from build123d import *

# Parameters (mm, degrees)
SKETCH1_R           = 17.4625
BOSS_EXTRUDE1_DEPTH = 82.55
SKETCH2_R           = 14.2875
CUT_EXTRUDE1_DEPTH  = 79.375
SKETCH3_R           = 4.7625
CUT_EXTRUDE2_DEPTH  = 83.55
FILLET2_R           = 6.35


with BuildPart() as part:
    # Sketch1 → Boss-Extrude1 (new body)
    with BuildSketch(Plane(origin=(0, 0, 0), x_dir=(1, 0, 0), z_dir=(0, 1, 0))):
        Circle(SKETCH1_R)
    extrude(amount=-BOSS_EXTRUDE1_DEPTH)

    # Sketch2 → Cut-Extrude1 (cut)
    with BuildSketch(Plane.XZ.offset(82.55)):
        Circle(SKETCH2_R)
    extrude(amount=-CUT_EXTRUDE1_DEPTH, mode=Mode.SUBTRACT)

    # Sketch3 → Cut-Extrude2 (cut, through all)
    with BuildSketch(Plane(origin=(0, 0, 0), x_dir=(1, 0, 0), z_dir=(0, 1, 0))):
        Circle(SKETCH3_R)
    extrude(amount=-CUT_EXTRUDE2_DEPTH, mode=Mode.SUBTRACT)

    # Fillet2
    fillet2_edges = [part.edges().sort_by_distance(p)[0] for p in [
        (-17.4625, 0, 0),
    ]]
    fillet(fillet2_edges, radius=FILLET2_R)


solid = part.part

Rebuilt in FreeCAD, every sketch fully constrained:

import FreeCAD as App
import Part
import Sketcher
from FreeCAD import Vector
Q = App.Units.Quantity


def edges_at(feature, points):
    """Names of the edges that pass closest to the given points."""
    edges = feature.Shape.Edges
    near = lambda p: min(range(len(edges)), key=lambda i: edges[i].distToShape(Part.Vertex(*p))[0])
    return sorted({f"Edge{near(p) + 1}" for p in points})

doc = App.newDocument("Part")
body = doc.addObject("PartDesign::Body", "Body")

# Sketch on XZ plane
sketch1 = body.newObject("Sketcher::SketchObject", "Sketch")
sketch1.AttachmentSupport = (doc.getObject("XZ_Plane"), [""])
sketch1.MapMode = "FlatFace"
sketch1.addGeometry(Part.Circle(Vector(0, 0, 0), Vector(0, 0, 1), 17), False)
sketch1.addConstraint([
    Sketcher.Constraint("Coincident", 0, 3, -1, 1),
    Sketcher.Constraint("Diameter", 0, Q("1.375 in")),
])
pad1 = body.newObject("PartDesign::Pad", "Pad")
pad1.Profile = sketch1
pad1.Length = Q("3.25 in")

# Sketch on XZ plane
sketch2 = body.newObject("Sketcher::SketchObject", "Sketch001")
sketch2.AttachmentSupport = (doc.getObject("XZ_Plane"), [""])
sketch2.MapMode = "FlatFace"
sketch2.AttachmentOffset = App.Placement(Vector(0, 0, 3.25 * 25.4), App.Rotation())
sketch2.addGeometry(Part.Circle(Vector(0, 0, 0), Vector(0, 0, 1), 14), False)
sketch2.addConstraint([
    Sketcher.Constraint("Coincident", 0, 3, -1, 1),
    Sketcher.Constraint("Diameter", 0, Q("1.125 in")),
])
pocket1 = body.newObject("PartDesign::Pocket", "Pocket")
pocket1.Profile = sketch2
pocket1.Length = Q("3.125 in")

# Sketch on XZ plane
sketch3 = body.newObject("Sketcher::SketchObject", "Sketch002")
sketch3.AttachmentSupport = (doc.getObject("XZ_Plane"), [""])
sketch3.MapMode = "FlatFace"
sketch3.addGeometry(Part.Circle(Vector(0, 0, 0), Vector(0, 0, 1), 4.8), False)
sketch3.addConstraint([
    Sketcher.Constraint("Coincident", 0, 3, -1, 1),
    Sketcher.Constraint("Diameter", 0, Q("0.375 in")),
])
pocket2 = body.newObject("PartDesign::Pocket", "Pocket001")
pocket2.Profile = sketch3
pocket2.Type = "ThroughAll"
pocket2.Reversed = True
doc.recompute()

fillet = body.newObject("PartDesign::Fillet", "Fillet")
fillet.Base = (pocket2, edges_at(pocket2, [(-17.462, 0, 0)]))
fillet.Radius = Q("0.25 in")

doc.recompute()
